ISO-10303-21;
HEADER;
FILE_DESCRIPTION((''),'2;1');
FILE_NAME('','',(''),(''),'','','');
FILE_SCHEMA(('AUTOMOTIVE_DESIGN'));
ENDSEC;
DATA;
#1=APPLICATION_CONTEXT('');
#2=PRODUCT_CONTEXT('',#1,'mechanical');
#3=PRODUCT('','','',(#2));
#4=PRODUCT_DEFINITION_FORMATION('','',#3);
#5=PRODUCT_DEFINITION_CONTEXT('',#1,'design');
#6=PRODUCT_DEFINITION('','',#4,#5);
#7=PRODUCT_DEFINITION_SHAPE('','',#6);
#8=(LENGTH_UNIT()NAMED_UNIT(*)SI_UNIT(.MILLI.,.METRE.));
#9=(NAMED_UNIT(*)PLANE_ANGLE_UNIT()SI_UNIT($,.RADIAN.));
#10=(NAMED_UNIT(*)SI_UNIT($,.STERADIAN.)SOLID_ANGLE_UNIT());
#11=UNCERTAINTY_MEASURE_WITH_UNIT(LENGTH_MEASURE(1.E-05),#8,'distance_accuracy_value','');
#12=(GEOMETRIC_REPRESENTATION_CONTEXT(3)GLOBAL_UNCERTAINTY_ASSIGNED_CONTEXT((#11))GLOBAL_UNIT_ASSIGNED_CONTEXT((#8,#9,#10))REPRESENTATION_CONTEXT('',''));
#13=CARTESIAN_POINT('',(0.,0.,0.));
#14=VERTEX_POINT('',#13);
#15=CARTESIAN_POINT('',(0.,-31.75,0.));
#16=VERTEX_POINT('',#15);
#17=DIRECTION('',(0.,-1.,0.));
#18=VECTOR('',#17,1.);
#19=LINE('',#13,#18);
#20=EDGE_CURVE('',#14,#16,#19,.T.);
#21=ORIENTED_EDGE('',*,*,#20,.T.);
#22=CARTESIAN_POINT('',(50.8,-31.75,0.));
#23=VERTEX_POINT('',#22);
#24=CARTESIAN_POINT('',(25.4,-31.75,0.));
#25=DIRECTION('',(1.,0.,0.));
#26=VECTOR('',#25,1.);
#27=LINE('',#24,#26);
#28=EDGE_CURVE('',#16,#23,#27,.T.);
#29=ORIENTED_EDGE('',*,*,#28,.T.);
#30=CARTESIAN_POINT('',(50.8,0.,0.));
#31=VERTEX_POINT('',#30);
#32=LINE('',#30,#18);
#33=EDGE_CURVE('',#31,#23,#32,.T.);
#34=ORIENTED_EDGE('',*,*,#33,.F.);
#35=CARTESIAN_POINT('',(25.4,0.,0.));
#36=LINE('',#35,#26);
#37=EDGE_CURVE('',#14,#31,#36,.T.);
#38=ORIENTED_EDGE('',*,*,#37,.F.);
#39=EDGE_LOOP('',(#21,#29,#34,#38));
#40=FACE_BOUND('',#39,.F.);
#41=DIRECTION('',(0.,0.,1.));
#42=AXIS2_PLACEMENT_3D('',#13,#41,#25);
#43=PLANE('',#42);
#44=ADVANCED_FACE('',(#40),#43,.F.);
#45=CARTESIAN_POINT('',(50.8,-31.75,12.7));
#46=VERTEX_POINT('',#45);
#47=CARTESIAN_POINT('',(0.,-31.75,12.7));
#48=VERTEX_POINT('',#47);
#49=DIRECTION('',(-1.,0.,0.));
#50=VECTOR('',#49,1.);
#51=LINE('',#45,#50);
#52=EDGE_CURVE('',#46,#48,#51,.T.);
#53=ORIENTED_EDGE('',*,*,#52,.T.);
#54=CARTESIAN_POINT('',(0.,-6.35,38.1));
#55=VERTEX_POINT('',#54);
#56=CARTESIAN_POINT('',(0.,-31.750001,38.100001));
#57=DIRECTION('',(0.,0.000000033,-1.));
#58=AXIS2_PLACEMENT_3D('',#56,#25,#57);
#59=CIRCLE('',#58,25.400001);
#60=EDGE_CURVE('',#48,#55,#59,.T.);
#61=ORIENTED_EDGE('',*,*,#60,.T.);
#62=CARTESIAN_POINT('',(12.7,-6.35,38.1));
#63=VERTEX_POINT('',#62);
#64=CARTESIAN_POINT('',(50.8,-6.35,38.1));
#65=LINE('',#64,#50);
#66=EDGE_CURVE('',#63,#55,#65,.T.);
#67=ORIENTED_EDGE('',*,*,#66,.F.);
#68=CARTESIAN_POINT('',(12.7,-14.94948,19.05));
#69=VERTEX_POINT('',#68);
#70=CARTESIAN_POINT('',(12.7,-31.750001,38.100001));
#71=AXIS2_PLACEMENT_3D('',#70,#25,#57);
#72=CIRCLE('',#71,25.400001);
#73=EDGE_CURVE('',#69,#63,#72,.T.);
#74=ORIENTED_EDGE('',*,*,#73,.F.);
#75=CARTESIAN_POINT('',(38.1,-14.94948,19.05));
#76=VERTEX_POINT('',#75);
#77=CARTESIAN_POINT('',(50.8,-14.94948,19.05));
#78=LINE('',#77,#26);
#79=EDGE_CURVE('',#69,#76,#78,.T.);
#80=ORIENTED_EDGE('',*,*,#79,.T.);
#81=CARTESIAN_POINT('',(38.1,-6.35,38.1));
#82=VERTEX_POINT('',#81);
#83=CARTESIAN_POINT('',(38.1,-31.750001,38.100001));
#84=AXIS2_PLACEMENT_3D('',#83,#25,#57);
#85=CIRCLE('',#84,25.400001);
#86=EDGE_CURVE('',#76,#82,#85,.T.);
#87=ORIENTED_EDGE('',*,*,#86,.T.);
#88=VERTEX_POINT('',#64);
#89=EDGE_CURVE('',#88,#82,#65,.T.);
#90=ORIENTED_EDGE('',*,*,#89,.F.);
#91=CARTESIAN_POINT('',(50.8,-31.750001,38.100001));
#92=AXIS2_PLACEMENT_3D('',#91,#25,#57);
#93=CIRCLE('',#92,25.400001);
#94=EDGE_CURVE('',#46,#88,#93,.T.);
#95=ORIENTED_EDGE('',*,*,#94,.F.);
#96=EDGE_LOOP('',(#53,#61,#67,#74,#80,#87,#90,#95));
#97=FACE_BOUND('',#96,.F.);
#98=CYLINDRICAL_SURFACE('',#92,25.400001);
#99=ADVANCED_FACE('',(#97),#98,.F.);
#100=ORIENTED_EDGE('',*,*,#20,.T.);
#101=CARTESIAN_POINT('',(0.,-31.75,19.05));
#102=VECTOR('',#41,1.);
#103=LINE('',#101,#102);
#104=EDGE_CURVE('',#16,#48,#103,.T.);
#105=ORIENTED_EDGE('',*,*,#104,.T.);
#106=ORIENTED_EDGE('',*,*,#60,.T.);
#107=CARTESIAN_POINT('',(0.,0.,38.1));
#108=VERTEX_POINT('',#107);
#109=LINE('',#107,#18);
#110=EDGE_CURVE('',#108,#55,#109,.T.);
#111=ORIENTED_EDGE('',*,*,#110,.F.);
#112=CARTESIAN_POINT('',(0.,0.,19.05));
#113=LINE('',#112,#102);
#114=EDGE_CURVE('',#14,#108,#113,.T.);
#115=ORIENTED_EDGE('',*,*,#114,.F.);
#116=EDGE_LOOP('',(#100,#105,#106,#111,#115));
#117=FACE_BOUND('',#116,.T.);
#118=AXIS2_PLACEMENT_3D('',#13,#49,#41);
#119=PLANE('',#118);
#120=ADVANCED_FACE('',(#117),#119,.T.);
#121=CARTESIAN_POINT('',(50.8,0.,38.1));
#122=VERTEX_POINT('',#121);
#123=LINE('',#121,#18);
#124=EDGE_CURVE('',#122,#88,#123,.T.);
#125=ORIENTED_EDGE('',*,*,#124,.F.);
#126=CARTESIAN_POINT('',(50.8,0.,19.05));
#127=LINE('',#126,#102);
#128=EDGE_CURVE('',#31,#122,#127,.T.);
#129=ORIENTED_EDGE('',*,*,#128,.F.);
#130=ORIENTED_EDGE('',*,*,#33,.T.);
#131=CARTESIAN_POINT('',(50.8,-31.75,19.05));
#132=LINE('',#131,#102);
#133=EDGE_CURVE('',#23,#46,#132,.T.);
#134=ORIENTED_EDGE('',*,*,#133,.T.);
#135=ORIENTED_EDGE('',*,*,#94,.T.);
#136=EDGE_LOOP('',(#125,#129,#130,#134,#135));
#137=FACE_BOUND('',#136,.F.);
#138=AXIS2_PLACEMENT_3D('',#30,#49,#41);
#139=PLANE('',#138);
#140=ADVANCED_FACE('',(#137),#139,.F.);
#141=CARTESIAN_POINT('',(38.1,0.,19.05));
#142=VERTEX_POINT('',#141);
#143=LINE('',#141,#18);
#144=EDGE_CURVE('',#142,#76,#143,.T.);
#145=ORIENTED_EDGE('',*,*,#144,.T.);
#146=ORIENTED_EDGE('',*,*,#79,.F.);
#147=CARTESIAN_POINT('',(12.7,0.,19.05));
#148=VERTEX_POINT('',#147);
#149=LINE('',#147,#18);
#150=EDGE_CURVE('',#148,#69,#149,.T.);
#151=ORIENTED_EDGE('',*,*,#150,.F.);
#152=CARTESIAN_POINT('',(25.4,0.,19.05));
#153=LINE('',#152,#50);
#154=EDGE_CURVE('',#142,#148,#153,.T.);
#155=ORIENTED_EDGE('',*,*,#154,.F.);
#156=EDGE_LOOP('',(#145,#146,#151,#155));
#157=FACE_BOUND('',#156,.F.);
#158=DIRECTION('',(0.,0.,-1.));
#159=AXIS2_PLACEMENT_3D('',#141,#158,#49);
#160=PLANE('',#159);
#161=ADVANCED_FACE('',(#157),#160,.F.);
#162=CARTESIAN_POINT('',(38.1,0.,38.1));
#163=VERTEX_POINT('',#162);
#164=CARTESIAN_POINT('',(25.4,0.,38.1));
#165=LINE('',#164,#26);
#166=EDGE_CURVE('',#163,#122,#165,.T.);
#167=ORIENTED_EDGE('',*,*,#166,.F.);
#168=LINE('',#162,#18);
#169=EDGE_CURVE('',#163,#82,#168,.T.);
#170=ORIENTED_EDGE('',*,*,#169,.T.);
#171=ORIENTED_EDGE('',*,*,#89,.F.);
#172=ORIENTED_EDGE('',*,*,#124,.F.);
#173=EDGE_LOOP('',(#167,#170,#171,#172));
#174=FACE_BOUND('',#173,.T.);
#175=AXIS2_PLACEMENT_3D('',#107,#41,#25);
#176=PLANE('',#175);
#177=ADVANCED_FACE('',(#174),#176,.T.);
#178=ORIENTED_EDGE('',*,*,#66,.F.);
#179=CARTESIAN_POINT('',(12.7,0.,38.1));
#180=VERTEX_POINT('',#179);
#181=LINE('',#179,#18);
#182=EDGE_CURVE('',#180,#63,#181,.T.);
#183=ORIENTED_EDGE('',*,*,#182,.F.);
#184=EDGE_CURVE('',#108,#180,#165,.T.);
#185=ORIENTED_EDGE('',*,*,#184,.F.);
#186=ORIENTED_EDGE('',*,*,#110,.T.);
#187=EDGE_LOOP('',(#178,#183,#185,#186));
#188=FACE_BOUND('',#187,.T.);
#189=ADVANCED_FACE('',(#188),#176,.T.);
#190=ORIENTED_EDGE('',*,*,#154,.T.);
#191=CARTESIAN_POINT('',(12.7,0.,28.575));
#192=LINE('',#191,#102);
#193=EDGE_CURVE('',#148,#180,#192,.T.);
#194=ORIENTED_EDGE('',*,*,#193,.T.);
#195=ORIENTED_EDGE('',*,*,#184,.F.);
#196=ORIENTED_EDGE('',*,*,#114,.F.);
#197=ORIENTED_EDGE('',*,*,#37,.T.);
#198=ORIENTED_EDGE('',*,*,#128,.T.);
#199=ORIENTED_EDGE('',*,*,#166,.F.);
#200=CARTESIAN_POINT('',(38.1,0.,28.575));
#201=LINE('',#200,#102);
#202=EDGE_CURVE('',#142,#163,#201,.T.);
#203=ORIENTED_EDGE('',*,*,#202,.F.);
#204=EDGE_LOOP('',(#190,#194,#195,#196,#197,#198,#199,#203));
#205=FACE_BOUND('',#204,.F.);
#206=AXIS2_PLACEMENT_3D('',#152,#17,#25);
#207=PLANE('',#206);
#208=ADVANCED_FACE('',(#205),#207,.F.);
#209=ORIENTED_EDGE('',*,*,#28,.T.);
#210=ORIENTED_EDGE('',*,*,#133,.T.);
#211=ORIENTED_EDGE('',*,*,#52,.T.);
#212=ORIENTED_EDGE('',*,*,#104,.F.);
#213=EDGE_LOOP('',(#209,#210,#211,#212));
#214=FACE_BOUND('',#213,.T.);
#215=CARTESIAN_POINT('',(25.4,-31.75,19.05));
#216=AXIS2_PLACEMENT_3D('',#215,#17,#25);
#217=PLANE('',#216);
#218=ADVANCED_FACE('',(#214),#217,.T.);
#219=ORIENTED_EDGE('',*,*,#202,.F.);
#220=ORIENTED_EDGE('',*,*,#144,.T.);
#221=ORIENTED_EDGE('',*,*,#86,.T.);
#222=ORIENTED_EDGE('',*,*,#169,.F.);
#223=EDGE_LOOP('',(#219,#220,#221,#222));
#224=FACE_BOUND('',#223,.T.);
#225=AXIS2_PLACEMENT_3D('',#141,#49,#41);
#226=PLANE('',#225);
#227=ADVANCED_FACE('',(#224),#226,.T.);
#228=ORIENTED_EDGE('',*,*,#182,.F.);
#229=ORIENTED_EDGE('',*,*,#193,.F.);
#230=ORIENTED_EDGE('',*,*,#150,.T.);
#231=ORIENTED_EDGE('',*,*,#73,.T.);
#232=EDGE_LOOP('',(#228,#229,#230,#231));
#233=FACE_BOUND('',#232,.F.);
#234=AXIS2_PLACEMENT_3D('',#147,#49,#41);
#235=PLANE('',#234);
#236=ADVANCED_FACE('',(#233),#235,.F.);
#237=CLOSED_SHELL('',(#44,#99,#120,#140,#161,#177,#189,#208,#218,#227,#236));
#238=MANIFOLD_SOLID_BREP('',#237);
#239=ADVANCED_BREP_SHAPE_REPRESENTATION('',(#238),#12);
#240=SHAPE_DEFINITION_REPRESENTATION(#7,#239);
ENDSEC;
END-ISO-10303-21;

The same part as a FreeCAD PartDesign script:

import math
import FreeCAD as App
import Part
import Sketcher
Q = App.Units.Quantity

doc = App.newDocument("Part")
params = doc.addObject("Spreadsheet::Sheet", "Params")
for row, (alias, value) in enumerate([
    ("sketch1_width", "2 in"),
    ("sketch1_height", "1.5 in"),
    ("pad1_length", "1.25 in"),
    ("sketch2_radius", "1 in"),
    ("pocket1_length", "2 in"),
    ("sketch3_width", "1 in"),
    ("sketch3_height", "0.75 in"),
    ("pocket2_length", "0.75 in"),
], start=1):
    params.set(f"A{row}", alias)
    params.set(f"B{row}", "=" + value)
    params.setAlias(f"B{row}", alias)

body = doc.addObject("PartDesign::Body", "Body")

sketch1 = body.newObject("Sketcher::SketchObject", "Sketch")
sketch1.AttachmentSupport = (doc.getObject("XZ_Plane"), [""])
sketch1.MapMode = "FlatFace"
sketch1.addGeometry([
    Part.LineSegment(App.Vector(0, 38.1, 0), App.Vector(0, 0, 0)),
    Part.LineSegment(App.Vector(0, 0, 0), App.Vector(50.8, 0, 0)),
    Part.LineSegment(App.Vector(50.8, 0, 0), App.Vector(50.8, 38.1, 0)),
    Part.LineSegment(App.Vector(50.8, 38.1, 0), App.Vector(0, 38.1, 0)),
], False)
sketch1.addConstraint([
    Sketcher.Constraint("Coincident", 0, 2, 1, 1),
    Sketcher.Constraint("Coincident", 1, 2, 2, 1),
    Sketcher.Constraint("Coincident", 2, 2, 3, 1),
    Sketcher.Constraint("Coincident", 3, 2, 0, 1),
    Sketcher.Constraint("Vertical", 0),
    Sketcher.Constraint("Horizontal", 1),
    Sketcher.Constraint("Vertical", 2),
    Sketcher.Constraint("Horizontal", 3),
    Sketcher.Constraint("Coincident", 0, 2, -1, 1),
    Sketcher.Constraint("DistanceX", 1, 1, 1, 2, Q("2 in")),
    Sketcher.Constraint("DistanceY", 0, 2, 0, 1, Q("1.5 in")),
])
sketch1.setExpression("Constraints[9]", "Params.sketch1_width")
sketch1.setExpression("Constraints[10]", "Params.sketch1_height")
pad1 = body.newObject("PartDesign::Pad", "Pad")
pad1.Profile = sketch1
pad1.setExpression("Length", "Params.pad1_length")

sketch2 = body.newObject("Sketcher::SketchObject", "Sketch001")
sketch2.AttachmentSupport = (doc.getObject("YZ_Plane"), [""])
sketch2.MapMode = "FlatFace"
sketch2.AttachmentOffset = App.Placement(App.Vector(0, 0, 2 * 25.4), App.Rotation())
sketch2.addGeometry([
    Part.ArcOfCircle(Part.Circle(App.Vector(-31.750001, 38.100001, 0), App.Vector(0, 0, 1), 25.400001), math.radians(-89.999998), math.radians(-0.000002)),
    Part.ArcOfCircle(Part.Circle(App.Vector(-31.75, 38.1, 0), App.Vector(0, 0, 1), 25.4), math.radians(0), math.radians(270)),
], False)
sketch2.addConstraint([
    Sketcher.Constraint("Tangent", 0, 1, 1, 2),
    Sketcher.Constraint("Coincident", 1, 1, 0, 2),
    Sketcher.Constraint("Horizontal", 0, 3, 1, 1),
    Sketcher.Constraint("Vertical", 1, 3, 0, 1),
    Sketcher.Constraint("Radius", 0, Q("1 in")),
    Sketcher.Constraint("DistanceY", -1, 1, 0, 3, Q("1.5 in")),
    Sketcher.Constraint("DistanceX", 0, 3, -1, 1, Q("1.25 in")),
])
sketch2.setExpression("Constraints[4]", "Params.sketch2_radius")
pocket1 = body.newObject("PartDesign::Pocket", "Pocket")
pocket1.Profile = sketch2
pocket1.setExpression("Length", "Params.pocket1_length")

sketch3 = body.newObject("Sketcher::SketchObject", "Sketch002")
sketch3.AttachmentSupport = (doc.getObject("XZ_Plane"), [""])
sketch3.MapMode = "FlatFace"
sketch3.addGeometry([
    Part.LineSegment(App.Vector(38.1, 38.1, 0), App.Vector(38.1, 19.05, 0)),
    Part.LineSegment(App.Vector(38.1, 19.05, 0), App.Vector(12.7, 19.05, 0)),
    Part.LineSegment(App.Vector(12.7, 19.05, 0), App.Vector(12.7, 38.1, 0)),
    Part.LineSegment(App.Vector(12.7, 38.1, 0), App.Vector(38.1, 38.1, 0)),
], False)
sketch3.addConstraint([
    Sketcher.Constraint("Coincident", 0, 2, 1, 1),
    Sketcher.Constraint("Coincident", 1, 2, 2, 1),
    Sketcher.Constraint("Coincident", 2, 2, 3, 1),
    Sketcher.Constraint("Coincident", 3, 2, 0, 1),
    Sketcher.Constraint("Vertical", 0),
    Sketcher.Constraint("Horizontal", 1),
    Sketcher.Constraint("Vertical", 2),
    Sketcher.Constraint("Horizontal", 3),
    Sketcher.Constraint("DistanceX", 1, 2, 1, 1, Q("1 in")),
    Sketcher.Constraint("DistanceY", 0, 2, 0, 1, Q("0.75 in")),
    Sketcher.Constraint("DistanceX", -1, 1, 0, 2, Q("1.5 in")),
    Sketcher.Constraint("DistanceY", -1, 1, 2, 2, Q("1.5 in")),
])
sketch3.setExpression("Constraints[8]", "Params.sketch3_width")
sketch3.setExpression("Constraints[9]", "Params.sketch3_height")
pocket2 = body.newObject("PartDesign::Pocket", "Pocket001")
pocket2.Profile = sketch3
pocket2.setExpression("Length", "Params.pocket2_length")
pocket2.Reversed = True

doc.recompute()
